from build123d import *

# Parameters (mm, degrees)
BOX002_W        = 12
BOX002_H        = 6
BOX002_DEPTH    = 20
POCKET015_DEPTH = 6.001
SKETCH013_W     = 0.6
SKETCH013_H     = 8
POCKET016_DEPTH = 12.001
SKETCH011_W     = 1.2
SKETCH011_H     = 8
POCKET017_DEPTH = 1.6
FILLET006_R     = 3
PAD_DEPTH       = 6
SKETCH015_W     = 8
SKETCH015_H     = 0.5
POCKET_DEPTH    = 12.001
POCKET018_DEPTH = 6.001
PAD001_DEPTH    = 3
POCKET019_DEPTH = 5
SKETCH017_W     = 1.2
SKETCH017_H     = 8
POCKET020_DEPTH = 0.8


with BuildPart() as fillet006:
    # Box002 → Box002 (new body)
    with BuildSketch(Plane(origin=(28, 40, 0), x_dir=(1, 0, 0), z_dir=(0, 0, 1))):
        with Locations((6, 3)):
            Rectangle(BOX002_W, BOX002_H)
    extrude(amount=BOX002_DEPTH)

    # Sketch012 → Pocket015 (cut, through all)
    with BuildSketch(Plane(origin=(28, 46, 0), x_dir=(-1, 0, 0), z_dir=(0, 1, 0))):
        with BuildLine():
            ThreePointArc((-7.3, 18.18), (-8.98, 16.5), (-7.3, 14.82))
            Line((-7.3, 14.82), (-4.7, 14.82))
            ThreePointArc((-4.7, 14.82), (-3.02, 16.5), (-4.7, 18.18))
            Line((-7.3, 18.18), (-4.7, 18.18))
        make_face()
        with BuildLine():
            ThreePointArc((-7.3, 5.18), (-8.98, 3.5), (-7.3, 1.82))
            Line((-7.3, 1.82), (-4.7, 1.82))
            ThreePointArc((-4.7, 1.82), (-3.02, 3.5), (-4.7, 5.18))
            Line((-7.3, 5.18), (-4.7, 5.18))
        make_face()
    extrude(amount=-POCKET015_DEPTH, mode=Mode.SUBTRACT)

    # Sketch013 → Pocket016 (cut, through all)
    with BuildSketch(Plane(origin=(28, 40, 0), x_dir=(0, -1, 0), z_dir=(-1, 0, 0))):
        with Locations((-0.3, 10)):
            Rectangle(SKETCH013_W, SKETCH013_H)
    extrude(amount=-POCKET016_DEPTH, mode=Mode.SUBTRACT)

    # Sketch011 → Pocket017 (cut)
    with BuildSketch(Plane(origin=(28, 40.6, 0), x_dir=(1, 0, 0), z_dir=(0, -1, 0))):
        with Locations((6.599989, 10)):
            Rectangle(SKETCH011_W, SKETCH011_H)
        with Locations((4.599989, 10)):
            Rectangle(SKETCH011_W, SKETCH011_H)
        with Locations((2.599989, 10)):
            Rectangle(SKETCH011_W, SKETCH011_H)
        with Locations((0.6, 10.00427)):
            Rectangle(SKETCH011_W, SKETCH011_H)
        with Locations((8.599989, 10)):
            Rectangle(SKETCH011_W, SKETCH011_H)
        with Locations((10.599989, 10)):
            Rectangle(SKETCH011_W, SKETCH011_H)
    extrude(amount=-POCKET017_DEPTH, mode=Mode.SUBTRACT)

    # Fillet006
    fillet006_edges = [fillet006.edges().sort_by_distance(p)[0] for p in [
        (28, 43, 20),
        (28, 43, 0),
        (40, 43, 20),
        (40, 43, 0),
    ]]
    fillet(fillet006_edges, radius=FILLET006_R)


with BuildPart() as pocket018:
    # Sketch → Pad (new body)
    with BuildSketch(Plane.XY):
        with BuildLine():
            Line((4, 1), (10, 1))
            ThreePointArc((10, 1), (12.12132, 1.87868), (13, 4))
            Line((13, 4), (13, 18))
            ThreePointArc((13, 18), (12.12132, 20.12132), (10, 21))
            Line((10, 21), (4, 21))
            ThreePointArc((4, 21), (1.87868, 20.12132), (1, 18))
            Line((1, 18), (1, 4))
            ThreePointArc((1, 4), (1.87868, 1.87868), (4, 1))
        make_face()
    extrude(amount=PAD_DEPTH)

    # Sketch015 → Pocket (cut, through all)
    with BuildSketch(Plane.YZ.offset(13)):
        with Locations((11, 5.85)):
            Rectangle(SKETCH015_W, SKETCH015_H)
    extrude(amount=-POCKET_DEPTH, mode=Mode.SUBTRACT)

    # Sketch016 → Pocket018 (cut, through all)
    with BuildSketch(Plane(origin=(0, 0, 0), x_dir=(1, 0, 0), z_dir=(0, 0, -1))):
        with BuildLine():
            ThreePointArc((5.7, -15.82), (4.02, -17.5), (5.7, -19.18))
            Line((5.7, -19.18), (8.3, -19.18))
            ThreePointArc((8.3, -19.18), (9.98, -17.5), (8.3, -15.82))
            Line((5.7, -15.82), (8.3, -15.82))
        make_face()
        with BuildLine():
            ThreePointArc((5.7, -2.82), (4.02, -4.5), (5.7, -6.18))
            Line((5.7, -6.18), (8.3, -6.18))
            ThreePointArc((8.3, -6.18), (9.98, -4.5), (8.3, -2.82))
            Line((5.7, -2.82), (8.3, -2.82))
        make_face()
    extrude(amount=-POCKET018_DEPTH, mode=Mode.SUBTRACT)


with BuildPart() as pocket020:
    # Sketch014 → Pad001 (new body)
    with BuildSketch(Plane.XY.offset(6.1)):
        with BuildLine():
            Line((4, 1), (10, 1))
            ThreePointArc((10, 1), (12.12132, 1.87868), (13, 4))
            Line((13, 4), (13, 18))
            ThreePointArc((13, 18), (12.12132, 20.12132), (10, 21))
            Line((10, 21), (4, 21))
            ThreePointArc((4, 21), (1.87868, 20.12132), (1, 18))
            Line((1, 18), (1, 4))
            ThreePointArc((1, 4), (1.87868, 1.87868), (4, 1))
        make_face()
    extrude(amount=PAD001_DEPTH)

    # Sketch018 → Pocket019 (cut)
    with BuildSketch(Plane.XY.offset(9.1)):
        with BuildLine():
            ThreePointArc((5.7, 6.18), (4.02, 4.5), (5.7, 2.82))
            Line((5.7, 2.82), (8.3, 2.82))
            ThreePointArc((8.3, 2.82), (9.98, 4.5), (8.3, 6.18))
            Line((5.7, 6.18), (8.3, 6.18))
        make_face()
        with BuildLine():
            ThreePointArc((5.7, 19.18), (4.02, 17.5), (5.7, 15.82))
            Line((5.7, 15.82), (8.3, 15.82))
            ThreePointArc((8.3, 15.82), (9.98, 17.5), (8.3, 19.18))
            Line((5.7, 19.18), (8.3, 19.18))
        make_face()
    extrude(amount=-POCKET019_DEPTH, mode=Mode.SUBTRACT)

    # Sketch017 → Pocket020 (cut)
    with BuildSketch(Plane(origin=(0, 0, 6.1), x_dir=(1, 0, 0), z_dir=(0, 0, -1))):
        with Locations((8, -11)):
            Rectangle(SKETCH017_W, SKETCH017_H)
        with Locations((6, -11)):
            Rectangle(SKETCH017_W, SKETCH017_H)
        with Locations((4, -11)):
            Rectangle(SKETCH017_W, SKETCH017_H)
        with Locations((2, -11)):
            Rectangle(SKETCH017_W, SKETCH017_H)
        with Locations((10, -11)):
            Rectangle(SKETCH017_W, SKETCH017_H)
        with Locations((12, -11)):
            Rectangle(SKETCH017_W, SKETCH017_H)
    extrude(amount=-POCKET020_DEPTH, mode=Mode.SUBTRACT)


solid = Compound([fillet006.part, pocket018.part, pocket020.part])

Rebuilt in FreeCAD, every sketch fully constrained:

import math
import FreeCAD as App
import Part
import Sketcher

V = App.Vector
Q = App.Units.Quantity


def edges_at(feature, points):
    """Names of the edges that pass closest to the given points."""
    edges = feature.Shape.Edges
    near = lambda p: min(range(len(edges)), key=lambda i: edges[i].distToShape(Part.Vertex(*p))[0])
    return sorted({f"Edge{near(p) + 1}" for p in points})


def add_polygon(sketch, points):
    """Adds a closed chain of lines whose ends are joined by coincident constraints."""
    first, n = sketch.GeometryCount, len(points)
    for a, b in zip(points, points[1:] + points[:1]):
        sketch.addGeometry(Part.LineSegment(App.Vector(*a, 0), App.Vector(*b, 0)), False)
    for i in range(n):
        sketch.addConstraint(Sketcher.Constraint("Coincident", first + i, 2, first + (i + 1) % n, 1))

doc = App.newDocument("Part")
params = doc.addObject("Spreadsheet::Sheet", "Params")
for row, (alias, value) in enumerate([
    ("sketch1_width", "12 mm"),
    ("sketch1_height", "6 mm"),
    ("pad1_length", "20 mm"),
    ("sketch2_radius", "1.68 mm"),
    ("sketch2_width", "2.6 mm"),
    ("sketch3_height", "8 mm"),
    ("sketch3_width", "0.6 mm"),
    ("sketch4_height", "8 mm"),
    ("sketch4_width", "1.2 mm"),
    ("pocket3_length", "1.6 mm"),
    ("fillet_radius", "3 mm"),
    ("sketch5_radius", "3.000001 mm"),
    ("sketch5_width", "6 mm"),
    ("sketch5_height", "14 mm"),
    ("pad2_length", "6 mm"),
    ("sketch6_width", "8 mm"),
    ("sketch6_height", "0.5 mm"),
    ("sketch7_radius", "1.68 mm"),
    ("sketch7_width", "2.6 mm"),
    ("sketch8_radius", "3.000001 mm"),
    ("sketch8_width", "6 mm"),
    ("sketch8_height", "14 mm"),
    ("pad3_length", "3 mm"),
    ("sketch9_radius", "1.68 mm"),
    ("sketch9_width", "2.6 mm"),
    ("pocket6_length", "5 mm"),
    ("sketch10_height", "8 mm"),
    ("sketch10_width", "1.2 mm"),
    ("pocket7_length", "0.8 mm"),
], start=1):
    params.set(f"A{row}", alias)
    params.set(f"B{row}", "=" + value)
    params.setAlias(f"B{row}", alias)

body = doc.addObject("PartDesign::Body", "Body")

sketch1 = body.newObject("Sketcher::SketchObject", "Sketch")
sketch1.AttachmentSupport = (doc.getObject("XY_Plane"), [""])
sketch1.MapMode = "FlatFace"
add_polygon(sketch1, [(28, 46), (28, 40), (40, 40), (40, 46)])
sketch1.addConstraint(Sketcher.Constraint("Vertical", 0))
sketch1.addConstraint(Sketcher.Constraint("Horizontal", 1))
sketch1.addConstraint(Sketcher.Constraint("Vertical", 2))
sketch1.addConstraint(Sketcher.Constraint("Horizontal", 3))
sketch1.addConstraint(Sketcher.Constraint("DistanceX", 1, 1, 1, 2, Q("12 mm")))
sketch1.addConstraint(Sketcher.Constraint("DistanceY", 0, 2, 0, 1, Q("6 mm")))
sketch1.addConstraint(Sketcher.Constraint("DistanceX", -1, 1, 0, 2, Q("28 mm")))
sketch1.addConstraint(Sketcher.Constraint("DistanceY", -1, 1, 0, 2, Q("40 mm")))
sketch1.setExpression("Constraints[8]", "Params.sketch1_width")
sketch1.setExpression("Constraints[9]", "Params.sketch1_height")
pad1 = body.newObject("PartDesign::Pad", "Pad")
pad1.Profile = sketch1
pad1.setExpression("Length", "Params.pad1_length")

sketch2 = body.newObject("Sketcher::SketchObject", "Sketch001")
sketch2.AttachmentSupport = (doc.getObject("XZ_Plane"), [""])
sketch2.MapMode = "FlatFace"
sketch2.AttachmentOffset = App.Placement(V(0, 0, -46), App.Rotation())
sketch2.addGeometry(Part.ArcOfCircle(Part.Circle(V(35.3, 16.5, 0), V(0, 0, 1), 1.68), math.radians(-90), math.radians(90)), False)
sketch2.addGeometry(Part.LineSegment(V(35.3, 14.82, 0), V(32.7, 14.82, 0)), False)
sketch2.addGeometry(Part.ArcOfCircle(Part.Circle(V(32.7, 16.5, 0), V(0, 0, 1), 1.68), math.radians(90), math.radians(270)), False)
sketch2.addGeometry(Part.LineSegment(V(32.7, 18.18, 0), V(35.3, 18.18, 0)), False)
sketch2.addGeometry(Part.ArcOfCircle(Part.Circle(V(35.3, 3.5, 0), V(0, 0, 1), 1.68), math.radians(-90), math.radians(90)), False)
sketch2.addGeometry(Part.LineSegment(V(35.3, 1.82, 0), V(32.7, 1.82, 0)), False)
sketch2.addGeometry(Part.ArcOfCircle(Part.Circle(V(32.7, 3.5, 0), V(0, 0, 1), 1.68), math.radians(90), math.radians(270)), False)
sketch2.addGeometry(Part.LineSegment(V(32.7, 5.18, 0), V(35.3, 5.18, 0)), False)
sketch2.addConstraint(Sketcher.Constraint("Tangent", 0, 1, 1, 1))
sketch2.addConstraint(Sketcher.Constraint("Tangent", 1, 2, 2, 2))
sketch2.addConstraint(Sketcher.Constraint("Tangent", 2, 1, 3, 1))
sketch2.addConstraint(Sketcher.Constraint("Tangent", 3, 2, 0, 2))
sketch2.addConstraint(Sketcher.Constraint("Tangent", 4, 1, 5, 1))
sketch2.addConstraint(Sketcher.Constraint("Tangent", 5, 2, 6, 2))
sketch2.addConstraint(Sketcher.Constraint("Tangent", 6, 1, 7, 1))
sketch2.addConstraint(Sketcher.Constraint("Tangent", 7, 2, 4, 2))
sketch2.addConstraint(Sketcher.Constraint("Horizontal", 1))
sketch2.addConstraint(Sketcher.Constraint("Horizontal", 3))
sketch2.addConstraint(Sketcher.Constraint("Horizontal", 5))
sketch2.addConstraint(Sketcher.Constraint("Horizontal", 7))
sketch2.addConstraint(Sketcher.Constraint("Equal", 2, 4))
sketch2.addConstraint(Sketcher.Constraint("Vertical", 0, 3, 4, 3))
sketch2.addConstraint(Sketcher.Constraint("Vertical", 2, 3, 6, 3))
sketch2.addConstraint(Sketcher.Constraint("Radius", 0, Q("1.68 mm")))
sketch2.addConstraint(Sketcher.Constraint("DistanceX", 1, 2, 1, 1, Q("2.6 mm")))
sketch2.addConstraint(Sketcher.Constraint("DistanceY", 4, 3, 0, 3, Q("13 mm")))
sketch2.addConstraint(Sketcher.Constraint("DistanceX", -1, 1, 0, 3, Q("35.3 mm")))
sketch2.addConstraint(Sketcher.Constraint("DistanceY", -1, 1, 0, 3, Q("16.5 mm")))
sketch2.setExpression("Constraints[15]", "Params.sketch2_radius")
sketch2.setExpression("Constraints[16]", "Params.sketch2_width")
pocket1 = body.newObject("PartDesign::Pocket", "Pocket")
pocket1.Profile = sketch2
pocket1.Type = "ThroughAll"
pocket1.Reversed = True

sketch3 = body.newObject("Sketcher::SketchObject", "Sketch002")
sketch3.AttachmentSupport = (doc.getObject("YZ_Plane"), [""])
sketch3.MapMode = "FlatFace"
sketch3.AttachmentOffset = App.Placement(V(0, 0, 28), App.Rotation())
add_polygon(sketch3, [(40.6, 14), (40.6, 6), (40, 6), (40, 14)])
sketch3.addConstraint(Sketcher.Constraint("Vertical", 0))
sketch3.addConstraint(Sketcher.Constraint("Horizontal", 1))
sketch3.addConstraint(Sketcher.Constraint("Vertical", 2))
sketch3.addConstraint(Sketcher.Constraint("Horizontal", 3))
sketch3.addConstraint(Sketcher.Constraint("DistanceY", 0, 2, 0, 1, Q("8 mm")))
sketch3.addConstraint(Sketcher.Constraint("DistanceX", 1, 2, 1, 1, Q("0.6 mm")))
sketch3.addConstraint(Sketcher.Constraint("DistanceY", -1, 1, 0, 2, Q("6 mm")))
sketch3.addConstraint(Sketcher.Constraint("DistanceX", -1, 1, 1, 2, Q("40 mm")))
sketch3.setExpression("Constraints[8]", "Params.sketch3_height")
sketch3.setExpression("Constraints[9]", "Params.sketch3_width")
pocket2 = body.newObject("PartDesign::Pocket", "Pocket001")
pocket2.Profile = sketch3
pocket2.Type = "ThroughAll"
pocket2.Reversed = True

sketch4 = body.newObject("Sketcher::SketchObject", "Sketch003")
sketch4.AttachmentSupport = (doc.getObject("XZ_Plane"), [""])
sketch4.MapMode = "FlatFace"
sketch4.AttachmentOffset = App.Placement(V(0, 0, -40.6), App.Rotation())
add_polygon(sketch4, [(33.999989, 14), (33.999989, 6), (35.199989, 6), (35.199989, 14)])
add_polygon(sketch4, [(31.999989, 14), (31.999989, 6), (33.199989, 6), (33.199989, 14)])
add_polygon(sketch4, [(29.999989, 14), (29.999989, 6), (31.199989, 6), (31.199989, 14)])
add_polygon(sketch4, [(28, 14.00427), (28, 6.00427), (29.2, 6.00427), (29.2, 14.00427)])
add_polygon(sketch4, [(35.999989, 14), (35.999989, 6), (37.199989, 6), (37.199989, 14)])
add_polygon(sketch4, [(37.999989, 14), (37.999989, 6), (39.199989, 6), (39.199989, 14)])
sketch4.addConstraint(Sketcher.Constraint("Vertical", 0))
sketch4.addConstraint(Sketcher.Constraint("Horizontal", 1))
sketch4.addConstraint(Sketcher.Constraint("Vertical", 2))
sketch4.addConstraint(Sketcher.Constraint("Horizontal", 3))
sketch4.addConstraint(Sketcher.Constraint("Vertical", 4))
sketch4.addConstraint(Sketcher.Constraint("Horizontal", 5))
sketch4.addConstraint(Sketcher.Constraint("Vertical", 6))
sketch4.addConstraint(Sketcher.Constraint("Horizontal", 7))
sketch4.addConstraint(Sketcher.Constraint("Vertical", 8))
sketch4.addConstraint(Sketcher.Constraint("Horizontal", 9))
sketch4.addConstraint(Sketcher.Constraint("Vertical", 10))
sketch4.addConstraint(Sketcher.Constraint("Horizontal", 11))
sketch4.addConstraint(Sketcher.Constraint("Vertical", 12))
sketch4.addConstraint(Sketcher.Constraint("Horizontal", 13))
sketch4.addConstraint(Sketcher.Constraint("Vertical", 14))
sketch4.addConstraint(Sketcher.Constraint("Horizontal", 15))
sketch4.addConstraint(Sketcher.Constraint("Vertical", 16))
sketch4.addConstraint(Sketcher.Constraint("Horizontal", 17))
sketch4.addConstraint(Sketcher.Constraint("Vertical", 18))
sketch4.addConstraint(Sketcher.Constraint("Horizontal", 19))
sketch4.addConstraint(Sketcher.Constraint("Vertical", 20))
sketch4.addConstraint(Sketcher.Constraint("Horizontal", 21))
sketch4.addConstraint(Sketcher.Constraint("Vertical", 22))
sketch4.addConstraint(Sketcher.Constraint("Horizontal", 23))
sketch4.addConstraint(Sketcher.Constraint("Horizontal", 1, 2, 4, 2))
sketch4.addConstraint(Sketcher.Constraint("Horizontal", 3, 2, 6, 2))
sketch4.addConstraint(Sketcher.Constraint("Horizontal", 5, 2, 8, 2))
sketch4.addConstraint(Sketcher.Constraint("Horizontal", 7, 2, 10, 2))
sketch4.addConstraint(Sketcher.Constraint("Horizontal", 9, 2, 16, 2))
sketch4.addConstraint(Sketcher.Constraint("Horizontal", 11, 2, 18, 2))
sketch4.addConstraint(Sketcher.Constraint("Horizontal", 17, 2, 20, 2))
sketch4.addConstraint(Sketcher.Constraint("Horizontal", 19, 2, 22, 2))
sketch4.addConstraint(Sketcher.Constraint("Equal", 3, 5))
sketch4.addConstraint(Sketcher.Constraint("Equal", 7, 9))
sketch4.addConstraint(Sketcher.Constraint("Equal", 11, 13))
sketch4.addConstraint(Sketcher.Constraint("Equal", 15, 17))
sketch4.addConstraint(Sketcher.Constraint("Equal", 19, 21))
sketch4.addConstraint(Sketcher.Constraint("Equal", 10, 12))
sketch4.addConstraint(Sketcher.Constraint("DistanceY", 0, 2, 0, 1, Q("8 mm")))
sketch4.addConstraint(Sketcher.Constraint("DistanceX", 1, 1, 1, 2, Q("1.2 mm")))
sketch4.addConstraint(Sketcher.Constraint("DistanceY", -1, 1, 0, 2, Q("6 mm")))
sketch4.addConstraint(Sketcher.Constraint("DistanceX", -1, 1, 12, 2, Q("28 mm")))
sketch4.addConstraint(Sketcher.Constraint("DistanceX", 4, 2, 0, 2, Q("2 mm")))
sketch4.addConstraint(Sketcher.Constraint("DistanceX", 8, 2, 4, 2, Q("2 mm")))
sketch4.addConstraint(Sketcher.Constraint("DistanceX", 0, 2, 16, 2, Q("2 mm")))
sketch4.addConstraint(Sketcher.Constraint("DistanceX", 16, 2, 20, 2, Q("2 mm")))
sketch4.addConstraint(Sketcher.Constraint("DistanceX", -1, 1, 0, 2, Q("33.999989 mm")))
sketch4.addConstraint(Sketcher.Constraint("DistanceY", -1, 1, 12, 2, Q("6.00427 mm")))
sketch4.setExpression("Constraints[62]", "Params.sketch4_height")
sketch4.setExpression("Constraints[63]", "Params.sketch4_width")
pocket3 = body.newObject("PartDesign::Pocket", "Pocket002")
pocket3.Profile = sketch4
pocket3.setExpression("Length", "Params.pocket3_length")
doc.recompute()

fillet = body.newObject("PartDesign::Fillet", "Fillet")
fillet.Base = (pocket3, edges_at(pocket3, [
    (28, 43, 20),
    (28, 43, 0),
    (40, 43, 20),
    (40, 43, 0),
]))
fillet.setExpression("Radius", "Params.fillet_radius")
body2 = doc.addObject("PartDesign::Body", "Body001")

sketch5 = body2.newObject("Sketcher::SketchObject", "Sketch004")
sketch5.AttachmentSupport = (doc.getObject("XY_Plane001"), [""])
sketch5.MapMode = "FlatFace"
sketch5.addGeometry(Part.LineSegment(V(4, 1, 0), V(10, 1, 0)), False)
sketch5.addGeometry(Part.ArcOfCircle(Part.Circle(V(9.999999, 4.000001, 0), V(0, 0, 1), 3.000001), math.radians(-89.999978), math.radians(-0.000022)), False)
sketch5.addGeometry(Part.LineSegment(V(13, 4, 0), V(13, 18, 0)), False)
sketch5.addGeometry(Part.ArcOfCircle(Part.Circle(V(9.999999, 17.999999, 0), V(0, 0, 1), 3.000001), math.radians(0.000022), math.radians(89.999978)), False)
sketch5.addGeometry(Part.LineSegment(V(10, 21, 0), V(4, 21, 0)), False)
sketch5.addGeometry(Part.ArcOfCircle(Part.Circle(V(4.000001, 17.999999, 0), V(0, 0, 1), 3.000001), math.radians(90.000022), math.radians(179.999978)), False)
sketch5.addGeometry(Part.LineSegment(V(1, 18, 0), V(1, 4, 0)), False)
sketch5.addGeometry(Part.ArcOfCircle(Part.Circle(V(4.000001, 4.000001, 0), V(0, 0, 1), 3.000001), math.radians(-179.999978), math.radians(-90.000022)), False)
sketch5.addConstraint(Sketcher.Constraint("Tangent", 0, 2, 1, 1))
sketch5.addConstraint(Sketcher.Constraint("Tangent", 1, 2, 2, 1))
sketch5.addConstraint(Sketcher.Constraint("Tangent", 2, 2, 3, 1))
sketch5.addConstraint(Sketcher.Constraint("Tangent", 3, 2, 4, 1))
sketch5.addConstraint(Sketcher.Constraint("Tangent", 4, 2, 5, 1))
sketch5.addConstraint(Sketcher.Constraint("Tangent", 5, 2, 6, 1))
sketch5.addConstraint(Sketcher.Constraint("Tangent", 6, 2, 7, 1))
sketch5.addConstraint(Sketcher.Constraint("Tangent", 7, 2, 0, 1))
sketch5.addConstraint(Sketcher.Constraint("Horizontal", 0))
sketch5.addConstraint(Sketcher.Constraint("Vertical", 2))
sketch5.addConstraint(Sketcher.Constraint("Horizontal", 4))
sketch5.addConstraint(Sketcher.Constraint("Vertical", 6))
sketch5.addConstraint(Sketcher.Constraint("Equal", 1, 3))
sketch5.addConstraint(Sketcher.Constraint("Equal", 3, 5))
sketch5.addConstraint(Sketcher.Constraint("Equal", 5, 7))
sketch5.addConstraint(Sketcher.Constraint("Radius", 1, Q("3.000001 mm")))
sketch5.addConstraint(Sketcher.Constraint("DistanceX", 0, 1, 0, 2, Q("6 mm")))
sketch5.addConstraint(Sketcher.Constraint("DistanceY", 2, 1, 2, 2, Q("14 mm")))
sketch5.addConstraint(Sketcher.Constraint("DistanceX", -1, 1, 1, 3, Q("9.999999 mm")))
sketch5.addConstraint(Sketcher.Constraint("DistanceY", -1, 1, 1, 3, Q("4.000001 mm")))
sketch5.setExpression("Constraints[15]", "Params.sketch5_radius")
sketch5.setExpression("Constraints[16]", "Params.sketch5_width")
sketch5.setExpression("Constraints[17]", "Params.sketch5_height")
pad2 = body2.newObject("PartDesign::Pad", "Pad001")
pad2.Profile = sketch5
pad2.setExpression("Length", "Params.pad2_length")

sketch6 = body2.newObject("Sketcher::SketchObject", "Sketch005")
sketch6.AttachmentSupport = (doc.getObject("YZ_Plane001"), [""])
sketch6.MapMode = "FlatFace"
sketch6.AttachmentOffset = App.Placement(V(0, 0, 13), App.Rotation())
add_polygon(sketch6, [(7, 6.1), (7, 5.6), (15, 5.6), (15, 6.1)])
sketch6.addConstraint(Sketcher.Constraint("Vertical", 0))
sketch6.addConstraint(Sketcher.Constraint("Horizontal", 1))
sketch6.addConstraint(Sketcher.Constraint("Vertical", 2))
sketch6.addConstraint(Sketcher.Constraint("Horizontal", 3))
sketch6.addConstraint(Sketcher.Constraint("DistanceX", 1, 1, 1, 2, Q("8 mm")))
sketch6.addConstraint(Sketcher.Constraint("DistanceY", 0, 2, 0, 1, Q("0.5 mm")))
sketch6.addConstraint(Sketcher.Constraint("DistanceX", -1, 1, 0, 2, Q("7 mm")))
sketch6.addConstraint(Sketcher.Constraint("DistanceY", -1, 1, 0, 2, Q("5.6 mm")))
sketch6.setExpression("Constraints[8]", "Params.sketch6_width")
sketch6.setExpression("Constraints[9]", "Params.sketch6_height")
pocket4 = body2.newObject("PartDesign::Pocket", "Pocket003")
pocket4.Profile = sketch6
pocket4.Type = "ThroughAll"

sketch7 = body2.newObject("Sketcher::SketchObject", "Sketch006")
sketch7.AttachmentSupport = (doc.getObject("XY_Plane001"), [""])
sketch7.MapMode = "FlatFace"
sketch7.addGeometry(Part.ArcOfCircle(Part.Circle(V(5.7, 17.5, 0), V(0, 0, 1), 1.68), math.radians(90), math.radians(270)), False)
sketch7.addGeometry(Part.LineSegment(V(5.7, 19.18, 0), V(8.3, 19.18, 0)), False)
sketch7.addGeometry(Part.ArcOfCircle(Part.Circle(V(8.3, 17.5, 0), V(0, 0, 1), 1.68), math.radians(-90), math.radians(90)), False)
sketch7.addGeometry(Part.LineSegment(V(8.3, 15.82, 0), V(5.7, 15.82, 0)), False)
sketch7.addGeometry(Part.ArcOfCircle(Part.Circle(V(5.7, 4.5, 0), V(0, 0, 1), 1.68), math.radians(90), math.radians(270)), False)
sketch7.addGeometry(Part.LineSegment(V(5.7, 6.18, 0), V(8.3, 6.18, 0)), False)
sketch7.addGeometry(Part.ArcOfCircle(Part.Circle(V(8.3, 4.5, 0), V(0, 0, 1), 1.68), math.radians(-90), math.radians(90)), False)
sketch7.addGeometry(Part.LineSegment(V(8.3, 2.82, 0), V(5.7, 2.82, 0)), False)
sketch7.addConstraint(Sketcher.Constraint("Tangent", 0, 1, 1, 1))
sketch7.addConstraint(Sketcher.Constraint("Tangent", 1, 2, 2, 2))
sketch7.addConstraint(Sketcher.Constraint("Tangent", 2, 1, 3, 1))
sketch7.addConstraint(Sketcher.Constraint("Tangent", 3, 2, 0, 2))
sketch7.addConstraint(Sketcher.Constraint("Tangent", 4, 1, 5, 1))
sketch7.addConstraint(Sketcher.Constraint("Tangent", 5, 2, 6, 2))
sketch7.addConstraint(Sketcher.Constraint("Tangent", 6, 1, 7, 1))
sketch7.addConstraint(Sketcher.Constraint("Tangent", 7, 2, 4, 2))
sketch7.addConstraint(Sketcher.Constraint("Horizontal", 1))
sketch7.addConstraint(Sketcher.Constraint("Horizontal", 3))
sketch7.addConstraint(Sketcher.Constraint("Horizontal", 5))
sketch7.addConstraint(Sketcher.Constraint("Horizontal", 7))
sketch7.addConstraint(Sketcher.Constraint("Equal", 2, 4))
sketch7.addConstraint(Sketcher.Constraint("Vertical", 0, 3, 4, 3))
sketch7.addConstraint(Sketcher.Constraint("Vertical", 2, 3, 6, 3))
sketch7.addConstraint(Sketcher.Constraint("Radius", 0, Q("1.68 mm")))
sketch7.addConstraint(Sketcher.Constraint("DistanceX", 1, 1, 1, 2, Q("2.6 mm")))
sketch7.addConstraint(Sketcher.Constraint("DistanceY", 4, 3, 0, 3, Q("13 mm")))
sketch7.addConstraint(Sketcher.Constraint("DistanceX", -1, 1, 0, 3, Q("5.7 mm")))
sketch7.addConstraint(Sketcher.Constraint("DistanceY", -1, 1, 0, 3, Q("17.5 mm")))
sketch7.setExpression("Constraints[15]", "Params.sketch7_radius")
sketch7.setExpression("Constraints[16]", "Params.sketch7_width")
pocket5 = body2.newObject("PartDesign::Pocket", "Pocket004")
pocket5.Profile = sketch7
pocket5.Type = "ThroughAll"
pocket5.Reversed = True
body3 = doc.addObject("PartDesign::Body", "Body002")

sketch8 = body3.newObject("Sketcher::SketchObject", "Sketch007")
sketch8.AttachmentSupport = (doc.getObject("XY_Plane002"), [""])
sketch8.MapMode = "FlatFace"
sketch8.AttachmentOffset = App.Placement(V(0, 0, 6.1), App.Rotation())
sketch8.addGeometry(Part.LineSegment(V(4, 1, 0), V(10, 1, 0)), False)
sketch8.addGeometry(Part.ArcOfCircle(Part.Circle(V(9.999999, 4.000001, 0), V(0, 0, 1), 3.000001), math.radians(-89.999978), math.radians(-0.000022)), False)
sketch8.addGeometry(Part.LineSegment(V(13, 4, 0), V(13, 18, 0)), False)
sketch8.addGeometry(Part.ArcOfCircle(Part.Circle(V(9.999999, 17.999999, 0), V(0, 0, 1), 3.000001), math.radians(0.000022), math.radians(89.999978)), False)
sketch8.addGeometry(Part.LineSegment(V(10, 21, 0), V(4, 21, 0)), False)
sketch8.addGeometry(Part.ArcOfCircle(Part.Circle(V(4.000001, 17.999999, 0), V(0, 0, 1), 3.000001), math.radians(90.000022), math.radians(179.999978)), False)
sketch8.addGeometry(Part.LineSegment(V(1, 18, 0), V(1, 4, 0)), False)
sketch8.addGeometry(Part.ArcOfCircle(Part.Circle(V(4.000001, 4.000001, 0), V(0, 0, 1), 3.000001), math.radians(-179.999978), math.radians(-90.000022)), False)
sketch8.addConstraint(Sketcher.Constraint("Tangent", 0, 2, 1, 1))
sketch8.addConstraint(Sketcher.Constraint("Tangent", 1, 2, 2, 1))
sketch8.addConstraint(Sketcher.Constraint("Tangent", 2, 2, 3, 1))
sketch8.addConstraint(Sketcher.Constraint("Tangent", 3, 2, 4, 1))
sketch8.addConstraint(Sketcher.Constraint("Tangent", 4, 2, 5, 1))
sketch8.addConstraint(Sketcher.Constraint("Tangent", 5, 2, 6, 1))
sketch8.addConstraint(Sketcher.Constraint("Tangent", 6, 2, 7, 1))
sketch8.addConstraint(Sketcher.Constraint("Tangent", 7, 2, 0, 1))
sketch8.addConstraint(Sketcher.Constraint("Horizontal", 0))
sketch8.addConstraint(Sketcher.Constraint("Vertical", 2))
sketch8.addConstraint(Sketcher.Constraint("Horizontal", 4))
sketch8.addConstraint(Sketcher.Constraint("Vertical", 6))
sketch8.addConstraint(Sketcher.Constraint("Equal", 1, 3))
sketch8.addConstraint(Sketcher.Constraint("Equal", 3, 5))
sketch8.addConstraint(Sketcher.Constraint("Equal", 5, 7))
sketch8.addConstraint(Sketcher.Constraint("Radius", 1, Q("3.000001 mm")))
sketch8.addConstraint(Sketcher.Constraint("DistanceX", 0, 1, 0, 2, Q("6 mm")))
sketch8.addConstraint(Sketcher.Constraint("DistanceY", 2, 1, 2, 2, Q("14 mm")))
sketch8.addConstraint(Sketcher.Constraint("DistanceX", -1, 1, 1, 3, Q("9.999999 mm")))
sketch8.addConstraint(Sketcher.Constraint("DistanceY", -1, 1, 1, 3, Q("4.000001 mm")))
sketch8.setExpression("Constraints[15]", "Params.sketch8_radius")
sketch8.setExpression("Constraints[16]", "Params.sketch8_width")
sketch8.setExpression("Constraints[17]", "Params.sketch8_height")
pad3 = body3.newObject("PartDesign::Pad", "Pad002")
pad3.Profile = sketch8
pad3.setExpression("Length", "Params.pad3_length")

sketch9 = body3.newObject("Sketcher::SketchObject", "Sketch008")
sketch9.AttachmentSupport = (doc.getObject("XY_Plane002"), [""])
sketch9.MapMode = "FlatFace"
sketch9.AttachmentOffset = App.Placement(V(0, 0, 9.1), App.Rotation())
sketch9.addGeometry(Part.ArcOfCircle(Part.Circle(V(5.7, 4.5, 0), V(0, 0, 1), 1.68), math.radians(90), math.radians(270)), False)
sketch9.addGeometry(Part.LineSegment(V(5.7, 2.82, 0), V(8.3, 2.82, 0)), False)
sketch9.addGeometry(Part.ArcOfCircle(Part.Circle(V(8.3, 4.5, 0), V(0, 0, 1), 1.68), math.radians(-90), math.radians(90)), False)
sketch9.addGeometry(Part.LineSegment(V(8.3, 6.18, 0), V(5.7, 6.18, 0)), False)
sketch9.addGeometry(Part.ArcOfCircle(Part.Circle(V(5.7, 17.5, 0), V(0, 0, 1), 1.68), math.radians(90), math.radians(270)), False)
sketch9.addGeometry(Part.LineSegment(V(5.7, 15.82, 0), V(8.3, 15.82, 0)), False)
sketch9.addGeometry(Part.ArcOfCircle(Part.Circle(V(8.3, 17.5, 0), V(0, 0, 1), 1.68), math.radians(-90), math.radians(90)), False)
sketch9.addGeometry(Part.LineSegment(V(8.3, 19.18, 0), V(5.7, 19.18, 0)), False)
sketch9.addConstraint(Sketcher.Constraint("Tangent", 0, 2, 1, 1))
sketch9.addConstraint(Sketcher.Constraint("Tangent", 1, 2, 2, 1))
sketch9.addConstraint(Sketcher.Constraint("Tangent", 2, 2, 3, 1))
sketch9.addConstraint(Sketcher.Constraint("Tangent", 3, 2, 0, 1))
sketch9.addConstraint(Sketcher.Constraint("Tangent", 4, 2, 5, 1))
sketch9.addConstraint(Sketcher.Constraint("Tangent", 5, 2, 6, 1))
sketch9.addConstraint(Sketcher.Constraint("Tangent", 6, 2, 7, 1))
sketch9.addConstraint(Sketcher.Constraint("Tangent", 7, 2, 4, 1))
sketch9.addConstraint(Sketcher.Constraint("Horizontal", 1))
sketch9.addConstraint(Sketcher.Constraint("Horizontal", 3))
sketch9.addConstraint(Sketcher.Constraint("Horizontal", 5))
sketch9.addConstraint(Sketcher.Constraint("Horizontal", 7))
sketch9.addConstraint(Sketcher.Constraint("Equal", 2, 4))
sketch9.addConstraint(Sketcher.Constraint("Vertical", 0, 3, 4, 3))
sketch9.addConstraint(Sketcher.Constraint("Vertical", 2, 3, 6, 3))
sketch9.addConstraint(Sketcher.Constraint("Radius", 0, Q("1.68 mm")))
sketch9.addConstraint(Sketcher.Constraint("DistanceX", 1, 1, 1, 2, Q("2.6 mm")))
sketch9.addConstraint(Sketcher.Constraint("DistanceY", 0, 3, 4, 3, Q("13 mm")))
sketch9.addConstraint(Sketcher.Constraint("DistanceX", -1, 1, 0, 3, Q("5.7 mm")))
sketch9.addConstraint(Sketcher.Constraint("DistanceY", -1, 1, 0, 3, Q("4.5 mm")))
sketch9.setExpression("Constraints[15]", "Params.sketch9_radius")
sketch9.setExpression("Constraints[16]", "Params.sketch9_width")
pocket6 = body3.newObject("PartDesign::Pocket", "Pocket005")
pocket6.Profile = sketch9
pocket6.setExpression("Length", "Params.pocket6_length")

sketch10 = body3.newObject("Sketcher::SketchObject", "Sketch009")
sketch10.AttachmentSupport = (doc.getObject("XY_Plane002"), [""])
sketch10.MapMode = "FlatFace"
sketch10.AttachmentOffset = App.Placement(V(0, 0, 6.1), App.Rotation())
add_polygon(sketch10, [(7.4, 7), (7.4, 15), (8.6, 15), (8.6, 7)])
add_polygon(sketch10, [(5.4, 7), (5.4, 15), (6.6, 15), (6.6, 7)])
add_polygon(sketch10, [(3.4, 7), (3.4, 15), (4.6, 15), (4.6, 7)])
add_polygon(sketch10, [(1.4, 7), (1.4, 15), (2.6, 15), (2.6, 7)])
add_polygon(sketch10, [(9.4, 7), (9.4, 15), (10.6, 15), (10.6, 7)])
add_polygon(sketch10, [(11.4, 7), (11.4, 15), (12.6, 15), (12.6, 7)])
sketch10.addConstraint(Sketcher.Constraint("Vertical", 0))
sketch10.addConstraint(Sketcher.Constraint("Horizontal", 1))
sketch10.addConstraint(Sketcher.Constraint("Vertical", 2))
sketch10.addConstraint(Sketcher.Constraint("Horizontal", 3))
sketch10.addConstraint(Sketcher.Constraint("Vertical", 4))
sketch10.addConstraint(Sketcher.Constraint("Horizontal", 5))
sketch10.addConstraint(Sketcher.Constraint("Vertical", 6))
sketch10.addConstraint(Sketcher.Constraint("Horizontal", 7))
sketch10.addConstraint(Sketcher.Constraint("Vertical", 8))
sketch10.addConstraint(Sketcher.Constraint("Horizontal", 9))
sketch10.addConstraint(Sketcher.Constraint("Vertical", 10))
sketch10.addConstraint(Sketcher.Constraint("Horizontal", 11))
sketch10.addConstraint(Sketcher.Constraint("Vertical", 12))
sketch10.addConstraint(Sketcher.Constraint("Horizontal", 13))
sketch10.addConstraint(Sketcher.Constraint("Vertical", 14))
sketch10.addConstraint(Sketcher.Constraint("Horizontal", 15))
sketch10.addConstraint(Sketcher.Constraint("Vertical", 16))
sketch10.addConstraint(Sketcher.Constraint("Horizontal", 17))
sketch10.addConstraint(Sketcher.Constraint("Vertical", 18))
sketch10.addConstraint(Sketcher.Constraint("Horizontal", 19))
sketch10.addConstraint(Sketcher.Constraint("Vertical", 20))
sketch10.addConstraint(Sketcher.Constraint("Horizontal", 21))
sketch10.addConstraint(Sketcher.Constraint("Vertical", 22))
sketch10.addConstraint(Sketcher.Constraint("Horizontal", 23))
sketch10.addConstraint(Sketcher.Constraint("Horizontal", 1, 2, 4, 2))
sketch10.addConstraint(Sketcher.Constraint("Horizontal", 3, 2, 6, 2))
sketch10.addConstraint(Sketcher.Constraint("Horizontal", 5, 2, 8, 2))
sketch10.addConstraint(Sketcher.Constraint("Horizontal", 7, 2, 10, 2))
sketch10.addConstraint(Sketcher.Constraint("Horizontal", 9, 2, 12, 2))
sketch10.addConstraint(Sketcher.Constraint("Horizontal", 11, 2, 14, 2))
sketch10.addConstraint(Sketcher.Constraint("Horizontal", 13, 2, 16, 2))
sketch10.addConstraint(Sketcher.Constraint("Horizontal", 15, 2, 18, 2))
sketch10.addConstraint(Sketcher.Constraint("Horizontal", 17, 2, 20, 2))
sketch10.addConstraint(Sketcher.Constraint("Horizontal", 19, 2, 22, 2))
sketch10.addConstraint(Sketcher.Constraint("Equal", 3, 5))
sketch10.addConstraint(Sketcher.Constraint("Equal", 7, 9))
sketch10.addConstraint(Sketcher.Constraint("Equal", 11, 13))
sketch10.addConstraint(Sketcher.Constraint("Equal", 15, 17))
sketch10.addConstraint(Sketcher.Constraint("Equal", 19, 21))
sketch10.addConstraint(Sketcher.Constraint("DistanceY", 0, 1, 0, 2, Q("8 mm")))
sketch10.addConstraint(Sketcher.Constraint("DistanceX", 1, 1, 1, 2, Q("1.2 mm")))
sketch10.addConstraint(Sketcher.Constraint("DistanceY", -1, 1, 0, 2, Q("15 mm")))
sketch10.addConstraint(Sketcher.Constraint("DistanceX", 4, 2, 0, 2, Q("2 mm")))
sketch10.addConstraint(Sketcher.Constraint("DistanceX", 8, 2, 4, 2, Q("2 mm")))
sketch10.addConstraint(Sketcher.Constraint("DistanceX", 12, 2, 8, 2, Q("2 mm")))
sketch10.addConstraint(Sketcher.Constraint("DistanceX", 0, 2, 16, 2, Q("2 mm")))
sketch10.addConstraint(Sketcher.Constraint("DistanceX", 16, 2, 20, 2, Q("2 mm")))
sketch10.addConstraint(Sketcher.Constraint("DistanceX", -1, 1, 0, 2, Q("7.4 mm")))
sketch10.setExpression("Constraints[63]", "Params.sketch10_height")
sketch10.setExpression("Constraints[64]", "Params.sketch10_width")
pocket7 = body3.newObject("PartDesign::Pocket", "Pocket006")
pocket7.Profile = sketch10
pocket7.setExpression("Length", "Params.pocket7_length")
pocket7.Reversed = True

doc.recompute()
